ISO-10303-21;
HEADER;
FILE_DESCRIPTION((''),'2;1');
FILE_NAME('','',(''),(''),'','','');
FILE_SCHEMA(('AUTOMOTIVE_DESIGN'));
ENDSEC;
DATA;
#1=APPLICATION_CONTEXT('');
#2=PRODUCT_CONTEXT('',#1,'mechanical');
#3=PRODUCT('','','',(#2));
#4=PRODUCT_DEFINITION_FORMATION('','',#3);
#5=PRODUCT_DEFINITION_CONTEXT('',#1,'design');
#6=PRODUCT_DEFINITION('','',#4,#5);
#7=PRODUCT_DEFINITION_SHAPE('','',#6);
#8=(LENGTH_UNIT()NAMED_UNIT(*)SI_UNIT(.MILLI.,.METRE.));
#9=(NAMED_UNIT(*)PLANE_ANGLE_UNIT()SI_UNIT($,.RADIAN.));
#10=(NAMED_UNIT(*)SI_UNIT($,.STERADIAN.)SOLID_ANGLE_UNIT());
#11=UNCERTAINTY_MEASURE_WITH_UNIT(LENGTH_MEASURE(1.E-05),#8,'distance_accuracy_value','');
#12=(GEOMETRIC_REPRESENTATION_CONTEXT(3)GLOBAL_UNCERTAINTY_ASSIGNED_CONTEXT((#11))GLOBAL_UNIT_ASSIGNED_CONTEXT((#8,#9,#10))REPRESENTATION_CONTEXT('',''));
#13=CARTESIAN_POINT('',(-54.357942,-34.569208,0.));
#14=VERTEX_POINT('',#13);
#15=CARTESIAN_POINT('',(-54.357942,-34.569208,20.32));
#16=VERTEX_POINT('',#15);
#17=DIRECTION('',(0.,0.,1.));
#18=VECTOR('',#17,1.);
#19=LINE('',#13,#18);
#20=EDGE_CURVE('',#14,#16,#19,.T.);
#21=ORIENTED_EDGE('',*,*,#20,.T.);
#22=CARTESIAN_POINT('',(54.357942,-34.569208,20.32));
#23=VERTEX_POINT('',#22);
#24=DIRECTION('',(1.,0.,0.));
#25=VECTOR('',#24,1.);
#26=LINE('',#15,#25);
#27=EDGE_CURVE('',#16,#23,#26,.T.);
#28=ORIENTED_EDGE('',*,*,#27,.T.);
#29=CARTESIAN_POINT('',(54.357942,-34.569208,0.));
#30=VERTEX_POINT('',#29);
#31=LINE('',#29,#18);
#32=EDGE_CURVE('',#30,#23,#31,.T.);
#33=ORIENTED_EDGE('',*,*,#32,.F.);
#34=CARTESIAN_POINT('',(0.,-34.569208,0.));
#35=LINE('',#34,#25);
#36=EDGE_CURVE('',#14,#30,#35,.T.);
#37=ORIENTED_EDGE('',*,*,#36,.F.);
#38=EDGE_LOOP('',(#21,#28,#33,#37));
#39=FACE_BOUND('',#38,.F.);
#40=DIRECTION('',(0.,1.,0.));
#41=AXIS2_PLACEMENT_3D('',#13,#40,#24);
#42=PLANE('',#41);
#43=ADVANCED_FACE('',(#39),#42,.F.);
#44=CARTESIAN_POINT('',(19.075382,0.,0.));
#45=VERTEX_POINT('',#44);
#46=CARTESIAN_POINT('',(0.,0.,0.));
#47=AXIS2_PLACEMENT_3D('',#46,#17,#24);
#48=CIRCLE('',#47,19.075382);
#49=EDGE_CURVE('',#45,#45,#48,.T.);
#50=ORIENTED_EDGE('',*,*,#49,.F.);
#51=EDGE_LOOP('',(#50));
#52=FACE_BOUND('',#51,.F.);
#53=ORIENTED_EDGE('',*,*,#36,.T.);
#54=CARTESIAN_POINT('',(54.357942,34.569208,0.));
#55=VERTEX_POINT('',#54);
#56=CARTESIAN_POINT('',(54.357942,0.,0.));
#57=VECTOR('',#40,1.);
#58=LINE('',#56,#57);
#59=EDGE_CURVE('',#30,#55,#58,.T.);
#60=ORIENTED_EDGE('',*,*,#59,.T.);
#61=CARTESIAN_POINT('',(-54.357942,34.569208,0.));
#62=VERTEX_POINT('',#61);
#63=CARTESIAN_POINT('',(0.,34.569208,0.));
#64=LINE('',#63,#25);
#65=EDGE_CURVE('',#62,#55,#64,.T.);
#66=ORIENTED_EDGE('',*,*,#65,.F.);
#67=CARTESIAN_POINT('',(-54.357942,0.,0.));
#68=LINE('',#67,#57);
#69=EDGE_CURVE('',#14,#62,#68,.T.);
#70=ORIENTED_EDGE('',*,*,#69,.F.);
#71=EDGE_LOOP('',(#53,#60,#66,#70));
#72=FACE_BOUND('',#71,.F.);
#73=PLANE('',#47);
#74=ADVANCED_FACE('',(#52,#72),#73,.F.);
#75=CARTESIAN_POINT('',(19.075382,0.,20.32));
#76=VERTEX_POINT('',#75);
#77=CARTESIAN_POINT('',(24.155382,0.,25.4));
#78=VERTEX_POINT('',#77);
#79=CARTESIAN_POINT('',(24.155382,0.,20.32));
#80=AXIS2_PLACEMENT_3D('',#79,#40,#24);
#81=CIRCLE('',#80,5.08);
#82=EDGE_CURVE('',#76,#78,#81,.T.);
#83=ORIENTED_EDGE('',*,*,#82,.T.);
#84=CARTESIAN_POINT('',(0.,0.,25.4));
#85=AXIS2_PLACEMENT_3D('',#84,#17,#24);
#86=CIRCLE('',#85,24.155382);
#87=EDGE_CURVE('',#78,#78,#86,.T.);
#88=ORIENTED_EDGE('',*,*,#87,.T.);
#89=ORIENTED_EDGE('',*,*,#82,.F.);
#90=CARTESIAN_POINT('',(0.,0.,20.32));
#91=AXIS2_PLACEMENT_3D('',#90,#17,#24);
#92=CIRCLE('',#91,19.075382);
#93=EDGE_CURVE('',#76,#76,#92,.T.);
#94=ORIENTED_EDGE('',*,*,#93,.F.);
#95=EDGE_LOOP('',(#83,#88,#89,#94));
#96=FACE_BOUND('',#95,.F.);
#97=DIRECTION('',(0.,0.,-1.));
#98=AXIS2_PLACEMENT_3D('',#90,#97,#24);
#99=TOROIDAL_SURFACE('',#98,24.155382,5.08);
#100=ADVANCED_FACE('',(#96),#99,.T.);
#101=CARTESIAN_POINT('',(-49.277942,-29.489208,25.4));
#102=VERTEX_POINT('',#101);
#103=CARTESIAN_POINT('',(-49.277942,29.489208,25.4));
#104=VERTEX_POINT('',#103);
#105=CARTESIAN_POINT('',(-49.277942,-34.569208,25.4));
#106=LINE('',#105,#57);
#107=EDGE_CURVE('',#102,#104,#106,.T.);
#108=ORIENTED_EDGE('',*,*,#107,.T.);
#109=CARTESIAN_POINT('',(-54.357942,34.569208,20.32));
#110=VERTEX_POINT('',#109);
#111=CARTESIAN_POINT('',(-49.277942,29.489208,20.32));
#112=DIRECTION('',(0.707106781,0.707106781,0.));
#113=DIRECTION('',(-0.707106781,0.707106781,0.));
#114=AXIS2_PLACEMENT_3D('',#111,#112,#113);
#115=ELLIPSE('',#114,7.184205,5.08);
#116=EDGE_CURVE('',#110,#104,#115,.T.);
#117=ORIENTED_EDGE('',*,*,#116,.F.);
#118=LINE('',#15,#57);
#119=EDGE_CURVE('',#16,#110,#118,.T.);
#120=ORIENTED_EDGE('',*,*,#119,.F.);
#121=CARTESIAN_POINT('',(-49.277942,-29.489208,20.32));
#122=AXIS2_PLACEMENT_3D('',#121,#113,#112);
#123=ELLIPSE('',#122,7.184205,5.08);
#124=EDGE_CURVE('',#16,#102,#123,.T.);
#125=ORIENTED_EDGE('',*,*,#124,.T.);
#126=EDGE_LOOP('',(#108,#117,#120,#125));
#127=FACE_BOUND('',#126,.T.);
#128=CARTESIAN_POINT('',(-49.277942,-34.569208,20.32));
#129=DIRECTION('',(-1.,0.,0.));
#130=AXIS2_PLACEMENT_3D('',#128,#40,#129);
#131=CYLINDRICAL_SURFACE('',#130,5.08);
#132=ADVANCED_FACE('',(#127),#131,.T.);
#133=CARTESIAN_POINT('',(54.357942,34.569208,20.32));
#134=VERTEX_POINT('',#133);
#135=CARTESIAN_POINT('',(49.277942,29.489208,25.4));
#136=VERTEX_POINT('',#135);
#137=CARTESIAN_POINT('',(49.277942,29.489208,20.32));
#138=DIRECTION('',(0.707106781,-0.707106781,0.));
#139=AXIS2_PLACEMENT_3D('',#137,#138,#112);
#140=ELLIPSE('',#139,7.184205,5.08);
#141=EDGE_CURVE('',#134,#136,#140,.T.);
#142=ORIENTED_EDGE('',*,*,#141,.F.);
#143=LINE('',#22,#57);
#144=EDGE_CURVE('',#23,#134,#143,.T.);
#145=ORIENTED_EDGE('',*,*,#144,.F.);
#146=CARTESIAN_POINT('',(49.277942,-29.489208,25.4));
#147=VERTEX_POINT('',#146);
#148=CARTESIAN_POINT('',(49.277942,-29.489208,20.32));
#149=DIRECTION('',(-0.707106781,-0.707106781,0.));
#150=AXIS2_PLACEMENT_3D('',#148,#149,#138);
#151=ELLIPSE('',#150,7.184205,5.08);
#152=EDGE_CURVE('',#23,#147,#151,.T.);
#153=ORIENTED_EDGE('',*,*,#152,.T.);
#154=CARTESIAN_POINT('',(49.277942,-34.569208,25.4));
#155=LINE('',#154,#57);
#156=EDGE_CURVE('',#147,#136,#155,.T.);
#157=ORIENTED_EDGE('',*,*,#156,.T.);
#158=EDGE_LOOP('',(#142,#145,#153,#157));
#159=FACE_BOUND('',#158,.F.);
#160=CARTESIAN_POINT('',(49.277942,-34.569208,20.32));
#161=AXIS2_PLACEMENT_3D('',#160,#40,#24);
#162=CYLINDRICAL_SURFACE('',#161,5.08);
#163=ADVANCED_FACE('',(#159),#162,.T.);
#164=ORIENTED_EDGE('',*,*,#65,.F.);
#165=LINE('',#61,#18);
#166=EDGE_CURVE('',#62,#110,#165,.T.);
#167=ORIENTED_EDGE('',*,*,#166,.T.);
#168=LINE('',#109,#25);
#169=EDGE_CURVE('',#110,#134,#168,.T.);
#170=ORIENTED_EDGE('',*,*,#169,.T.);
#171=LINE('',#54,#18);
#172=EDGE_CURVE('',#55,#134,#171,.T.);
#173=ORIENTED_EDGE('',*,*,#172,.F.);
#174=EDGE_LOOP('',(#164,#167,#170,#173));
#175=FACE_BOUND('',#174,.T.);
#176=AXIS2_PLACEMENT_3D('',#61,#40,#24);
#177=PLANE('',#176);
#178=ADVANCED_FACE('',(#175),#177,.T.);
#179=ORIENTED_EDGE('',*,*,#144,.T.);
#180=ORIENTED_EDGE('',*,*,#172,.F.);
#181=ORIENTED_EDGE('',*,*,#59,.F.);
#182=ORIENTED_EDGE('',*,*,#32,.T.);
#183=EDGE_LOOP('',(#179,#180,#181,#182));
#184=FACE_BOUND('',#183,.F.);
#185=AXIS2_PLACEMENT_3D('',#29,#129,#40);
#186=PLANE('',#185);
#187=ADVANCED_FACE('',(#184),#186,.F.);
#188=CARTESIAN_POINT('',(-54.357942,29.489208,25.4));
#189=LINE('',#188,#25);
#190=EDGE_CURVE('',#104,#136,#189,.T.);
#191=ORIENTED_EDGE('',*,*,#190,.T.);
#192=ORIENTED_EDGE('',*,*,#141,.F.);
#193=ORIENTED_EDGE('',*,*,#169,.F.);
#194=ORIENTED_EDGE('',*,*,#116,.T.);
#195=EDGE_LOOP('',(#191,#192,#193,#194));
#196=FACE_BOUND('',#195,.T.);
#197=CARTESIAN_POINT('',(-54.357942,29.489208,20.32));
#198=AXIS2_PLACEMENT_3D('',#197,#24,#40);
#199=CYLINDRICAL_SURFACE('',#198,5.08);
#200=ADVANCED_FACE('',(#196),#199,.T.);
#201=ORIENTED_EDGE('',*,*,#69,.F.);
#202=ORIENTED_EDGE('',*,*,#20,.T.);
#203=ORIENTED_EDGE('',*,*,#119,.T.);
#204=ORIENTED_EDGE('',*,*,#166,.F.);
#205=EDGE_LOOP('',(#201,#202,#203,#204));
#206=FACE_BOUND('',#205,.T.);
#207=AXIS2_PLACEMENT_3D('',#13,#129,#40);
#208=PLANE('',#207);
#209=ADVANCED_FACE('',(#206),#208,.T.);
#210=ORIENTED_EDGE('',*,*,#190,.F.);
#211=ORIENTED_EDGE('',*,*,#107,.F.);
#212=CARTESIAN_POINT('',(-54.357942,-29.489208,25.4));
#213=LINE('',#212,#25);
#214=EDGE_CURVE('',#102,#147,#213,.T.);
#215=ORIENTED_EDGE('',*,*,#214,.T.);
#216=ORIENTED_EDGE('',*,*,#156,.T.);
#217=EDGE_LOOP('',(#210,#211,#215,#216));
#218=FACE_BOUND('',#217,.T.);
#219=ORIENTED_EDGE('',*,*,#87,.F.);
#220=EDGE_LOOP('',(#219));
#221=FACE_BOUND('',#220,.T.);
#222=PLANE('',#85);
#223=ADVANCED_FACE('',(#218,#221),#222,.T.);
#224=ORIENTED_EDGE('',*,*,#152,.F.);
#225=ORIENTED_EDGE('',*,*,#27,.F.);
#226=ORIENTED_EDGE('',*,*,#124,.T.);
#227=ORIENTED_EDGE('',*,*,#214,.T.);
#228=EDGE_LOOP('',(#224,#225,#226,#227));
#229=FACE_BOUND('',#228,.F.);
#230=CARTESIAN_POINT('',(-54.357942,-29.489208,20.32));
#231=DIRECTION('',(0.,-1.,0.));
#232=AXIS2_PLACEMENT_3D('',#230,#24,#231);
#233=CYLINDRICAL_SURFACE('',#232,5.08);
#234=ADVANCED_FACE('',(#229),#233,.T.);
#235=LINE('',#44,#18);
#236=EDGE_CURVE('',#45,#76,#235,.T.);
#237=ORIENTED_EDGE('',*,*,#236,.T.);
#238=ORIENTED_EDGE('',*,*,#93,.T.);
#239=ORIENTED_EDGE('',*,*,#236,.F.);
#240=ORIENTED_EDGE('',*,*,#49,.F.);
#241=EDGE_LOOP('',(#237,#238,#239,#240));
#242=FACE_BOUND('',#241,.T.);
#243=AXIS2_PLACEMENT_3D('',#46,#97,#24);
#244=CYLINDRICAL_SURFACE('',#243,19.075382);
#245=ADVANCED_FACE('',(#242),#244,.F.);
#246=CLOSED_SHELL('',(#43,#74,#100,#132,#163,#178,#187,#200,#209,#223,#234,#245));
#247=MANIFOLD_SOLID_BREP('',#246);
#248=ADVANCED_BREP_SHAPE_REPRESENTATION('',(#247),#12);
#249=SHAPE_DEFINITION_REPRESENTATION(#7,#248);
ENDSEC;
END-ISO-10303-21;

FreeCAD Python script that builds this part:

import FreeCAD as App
import Part
import Sketcher
from FreeCAD import Vector
Q = App.Units.Quantity


def edges_at(feature, points):
    """Names of the edges that pass closest to the given points."""
    edges = feature.Shape.Edges
    near = lambda p: min(range(len(edges)), key=lambda i: edges[i].distToShape(Part.Vertex(*p))[0])
    return sorted({f"Edge{near(p) + 1}" for p in points})

doc = App.newDocument("Part")
body = doc.addObject("PartDesign::Body", "Body")

sketch1 = body.newObject("Sketcher::SketchObject", "Sketch")
sketch1.AttachmentSupport = (doc.getObject("XY_Plane"), [""])
sketch1.MapMode = "FlatFace"
sketch1.addGeometry([
    Part.LineSegment(Vector(-54, 35, 0), Vector(-54, -35, 0)),
    Part.LineSegment(Vector(-54, -35, 0), Vector(54, -35, 0)),
    Part.LineSegment(Vector(54, -35, 0), Vector(54, 35, 0)),
    Part.LineSegment(Vector(54, 35, 0), Vector(-54, 35, 0)),
    Part.Circle(Vector(0, 0, 0), Vector(0, 0, 1), 19),
], False)
sketch1.addConstraint([
    Sketcher.Constraint("Coincident", 0, 2, 1, 1),
    Sketcher.Constraint("Coincident", 1, 2, 2, 1),
    Sketcher.Constraint("Coincident", 2, 2, 3, 1),
    Sketcher.Constraint("Coincident", 3, 2, 0, 1),
    Sketcher.Constraint("Vertical", 0),
    Sketcher.Constraint("Horizontal", 1),
    Sketcher.Constraint("Vertical", 2),
    Sketcher.Constraint("Horizontal", 3),
    Sketcher.Constraint("Coincident", 4, 3, -1, 1),
    Sketcher.Constraint("Symmetric", 0, 2, 2, 2, -1, 1),
    Sketcher.Constraint("Diameter", 4, Q("38.150764 mm")),
    Sketcher.Constraint("DistanceX", 1, 1, 1, 2, Q("108.715884 mm")),
    Sketcher.Constraint("DistanceY", 0, 2, 0, 1, Q("69.138416 mm")),
])
pad1 = body.newObject("PartDesign::Pad", "Pad")
pad1.Profile = sketch1
pad1.Length = Q("1 in")
doc.recompute()

fillet = body.newObject("PartDesign::Fillet", "Fillet")
fillet.Base = (pad1, edges_at(pad1, [
    (0, -34.569, 25.4),
    (-54.358, 0, 25.4),
    (0, 34.569, 25.4),
    (54.358, 0, 25.4),
    (-19.075, 0, 25.4),
]))
fillet.Radius = Q("0.2 in")

doc.recompute()
